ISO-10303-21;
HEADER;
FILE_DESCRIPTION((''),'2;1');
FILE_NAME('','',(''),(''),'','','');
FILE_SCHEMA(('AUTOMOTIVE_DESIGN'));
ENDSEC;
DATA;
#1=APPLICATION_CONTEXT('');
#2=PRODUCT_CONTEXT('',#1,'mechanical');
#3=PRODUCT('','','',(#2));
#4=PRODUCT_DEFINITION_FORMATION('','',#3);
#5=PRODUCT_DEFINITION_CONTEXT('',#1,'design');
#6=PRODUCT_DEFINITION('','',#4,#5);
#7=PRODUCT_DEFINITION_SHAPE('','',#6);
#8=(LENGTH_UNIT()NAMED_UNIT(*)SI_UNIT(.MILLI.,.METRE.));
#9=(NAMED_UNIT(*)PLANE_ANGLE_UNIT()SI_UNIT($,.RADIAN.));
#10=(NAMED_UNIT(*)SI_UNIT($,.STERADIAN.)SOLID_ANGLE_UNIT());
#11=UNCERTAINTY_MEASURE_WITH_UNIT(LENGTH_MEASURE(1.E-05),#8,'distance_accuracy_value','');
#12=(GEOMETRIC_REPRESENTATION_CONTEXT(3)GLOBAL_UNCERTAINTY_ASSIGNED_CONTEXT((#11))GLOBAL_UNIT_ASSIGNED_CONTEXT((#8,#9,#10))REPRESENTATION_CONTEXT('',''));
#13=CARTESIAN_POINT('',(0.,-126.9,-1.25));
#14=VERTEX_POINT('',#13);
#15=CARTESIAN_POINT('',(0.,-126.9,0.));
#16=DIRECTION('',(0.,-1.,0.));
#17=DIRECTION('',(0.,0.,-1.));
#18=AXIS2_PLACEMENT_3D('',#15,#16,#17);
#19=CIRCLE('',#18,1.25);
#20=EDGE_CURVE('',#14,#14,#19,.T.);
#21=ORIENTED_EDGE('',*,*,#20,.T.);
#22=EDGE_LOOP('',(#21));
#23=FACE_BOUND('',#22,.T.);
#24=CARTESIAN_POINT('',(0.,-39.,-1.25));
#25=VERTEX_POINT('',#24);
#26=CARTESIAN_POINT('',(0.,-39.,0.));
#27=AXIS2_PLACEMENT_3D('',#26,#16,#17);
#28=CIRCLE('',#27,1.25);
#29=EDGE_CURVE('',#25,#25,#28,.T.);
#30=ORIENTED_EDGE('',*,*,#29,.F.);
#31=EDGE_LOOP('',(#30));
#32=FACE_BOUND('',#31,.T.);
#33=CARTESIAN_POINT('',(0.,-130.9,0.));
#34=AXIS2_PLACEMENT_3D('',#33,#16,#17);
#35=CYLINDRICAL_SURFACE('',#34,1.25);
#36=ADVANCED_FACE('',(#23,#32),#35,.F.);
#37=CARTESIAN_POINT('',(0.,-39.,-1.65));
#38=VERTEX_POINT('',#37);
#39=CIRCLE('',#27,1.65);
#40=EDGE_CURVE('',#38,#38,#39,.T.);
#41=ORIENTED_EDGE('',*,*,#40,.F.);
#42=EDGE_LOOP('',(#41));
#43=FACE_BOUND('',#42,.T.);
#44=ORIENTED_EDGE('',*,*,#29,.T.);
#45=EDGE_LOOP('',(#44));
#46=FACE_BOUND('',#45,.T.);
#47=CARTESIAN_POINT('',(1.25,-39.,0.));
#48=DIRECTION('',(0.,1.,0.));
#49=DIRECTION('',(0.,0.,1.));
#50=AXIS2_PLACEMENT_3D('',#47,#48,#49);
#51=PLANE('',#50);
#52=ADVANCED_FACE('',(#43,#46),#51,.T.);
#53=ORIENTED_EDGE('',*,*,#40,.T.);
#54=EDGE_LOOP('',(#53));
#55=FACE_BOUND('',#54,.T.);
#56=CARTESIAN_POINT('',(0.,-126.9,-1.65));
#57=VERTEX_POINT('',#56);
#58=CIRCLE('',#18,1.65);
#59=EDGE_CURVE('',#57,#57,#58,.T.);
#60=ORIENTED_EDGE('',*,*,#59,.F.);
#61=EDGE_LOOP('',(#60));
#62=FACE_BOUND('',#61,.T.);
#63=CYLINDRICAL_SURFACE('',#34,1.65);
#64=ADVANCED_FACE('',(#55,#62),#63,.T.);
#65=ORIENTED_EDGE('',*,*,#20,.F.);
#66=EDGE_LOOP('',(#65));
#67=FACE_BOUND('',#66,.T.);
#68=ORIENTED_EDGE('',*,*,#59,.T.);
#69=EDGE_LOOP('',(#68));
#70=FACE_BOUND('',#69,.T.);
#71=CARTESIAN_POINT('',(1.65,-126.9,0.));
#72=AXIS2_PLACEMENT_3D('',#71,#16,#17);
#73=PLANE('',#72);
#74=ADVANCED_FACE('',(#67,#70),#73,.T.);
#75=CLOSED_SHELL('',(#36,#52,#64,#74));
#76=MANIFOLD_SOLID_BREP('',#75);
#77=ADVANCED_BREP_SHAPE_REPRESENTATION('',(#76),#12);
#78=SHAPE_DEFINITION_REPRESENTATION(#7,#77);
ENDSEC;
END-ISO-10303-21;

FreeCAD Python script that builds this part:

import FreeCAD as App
import Part
import Sketcher
from FreeCAD import Vector

doc = App.newDocument("Part")
body = doc.addObject("PartDesign::Body", "Body")

# Sketch on XY plane
sketch1 = body.newObject("Sketcher::SketchObject", "Sketch")
sketch1.AttachmentSupport = (doc.getObject("XY_Plane"), [""])
sketch1.MapMode = "FlatFace"
sketch1.addGeometry([
    Part.LineSegment(Vector(1.25, -39, 0), Vector(1.25, -126.9, 0)),
    Part.LineSegment(Vector(1.25, -126.9, 0), Vector(1.65, -126.9, 0)),
    Part.LineSegment(Vector(1.65, -126.9, 0), Vector(1.65, -39, 0)),
    Part.LineSegment(Vector(1.65, -39, 0), Vector(1.25, -39, 0)),
], False)
sketch1.addConstraint([
    Sketcher.Constraint("Coincident", 0, 2, 1, 1),
    Sketcher.Constraint("Coincident", 1, 2, 2, 1),
    Sketcher.Constraint("Coincident", 2, 2, 3, 1),
    Sketcher.Constraint("Coincident", 3, 2, 0, 1),
    Sketcher.Constraint("Vertical", 0),
    Sketcher.Constraint("Horizontal", 1),
    Sketcher.Constraint("Vertical", 2),
    Sketcher.Constraint("Horizontal", 3),
    Sketcher.Constraint("DistanceX", 1, 1, 1, 2, 0.4),
    Sketcher.Constraint("DistanceY", 0, 2, 0, 1, 87.9),
    Sketcher.Constraint("DistanceY", 2, 2, -1, 1, 39.0),
    Sketcher.Constraint("DistanceX", -1, 1, 0, 2, 1.25),
])
revolution = body.newObject("PartDesign::Revolution", "Revolution")
revolution.Profile = sketch1
revolution.ReferenceAxis = (sketch1, ["V_Axis"])
revolution.Angle = 360

doc.recompute()
